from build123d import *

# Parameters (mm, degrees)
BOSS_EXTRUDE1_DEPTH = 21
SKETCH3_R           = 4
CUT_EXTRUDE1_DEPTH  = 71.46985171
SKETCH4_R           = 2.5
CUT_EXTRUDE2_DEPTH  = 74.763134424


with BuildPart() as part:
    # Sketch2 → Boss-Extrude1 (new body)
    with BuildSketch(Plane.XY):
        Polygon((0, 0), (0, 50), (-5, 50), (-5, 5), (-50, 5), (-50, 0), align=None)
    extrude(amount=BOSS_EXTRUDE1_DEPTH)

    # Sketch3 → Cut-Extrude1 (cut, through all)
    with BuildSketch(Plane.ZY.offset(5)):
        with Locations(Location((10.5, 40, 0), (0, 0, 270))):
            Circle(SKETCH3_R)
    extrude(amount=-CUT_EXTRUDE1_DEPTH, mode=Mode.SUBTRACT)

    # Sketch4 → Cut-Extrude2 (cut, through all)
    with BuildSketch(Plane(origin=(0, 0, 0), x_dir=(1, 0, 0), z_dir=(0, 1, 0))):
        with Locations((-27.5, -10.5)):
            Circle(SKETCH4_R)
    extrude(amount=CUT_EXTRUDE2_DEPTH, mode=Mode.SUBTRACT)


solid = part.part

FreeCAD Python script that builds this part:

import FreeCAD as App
import Part
import Sketcher

V = App.Vector
Q = App.Units.Quantity

doc = App.newDocument("Part")
body = doc.addObject("PartDesign::Body", "Body")

sketch1 = body.newObject("Sketcher::SketchObject", "Sketch")
sketch1.AttachmentSupport = (doc.getObject("XY_Plane"), [""])
sketch1.MapMode = "FlatFace"
sketch1.addGeometry([
    Part.LineSegment(V(0, 0, 0), V(0, 50, 0)),
    Part.LineSegment(V(0, 50, 0), V(-5, 50, 0)),
    Part.LineSegment(V(-5, 50, 0), V(-5, 5, 0)),
    Part.LineSegment(V(-5, 5, 0), V(-50, 5, 0)),
    Part.LineSegment(V(-50, 5, 0), V(-50, 0, 0)),
    Part.LineSegment(V(-50, 0, 0), V(0, 0, 0)),
], False)
sketch1.addConstraint([
    Sketcher.Constraint("Coincident", 0, 2, 1, 1),
    Sketcher.Constraint("Coincident", 1, 2, 2, 1),
    Sketcher.Constraint("Coincident", 2, 2, 3, 1),
    Sketcher.Constraint("Coincident", 3, 2, 4, 1),
    Sketcher.Constraint("Coincident", 4, 2, 5, 1),
    Sketcher.Constraint("Coincident", 5, 2, 0, 1),
    Sketcher.Constraint("Vertical", 0),
    Sketcher.Constraint("Horizontal", 1),
    Sketcher.Constraint("Vertical", 2),
    Sketcher.Constraint("Horizontal", 3),
    Sketcher.Constraint("Vertical", 4),
    Sketcher.Constraint("Horizontal", 5),
    Sketcher.Constraint("Coincident", 5, 2, -1, 1),
    Sketcher.Constraint("Equal", 5, 0),
    Sketcher.Constraint("Equal", 3, 2),
    Sketcher.Constraint("DistanceX", 1, 2, 1, 1, Q("5 mm")),
    Sketcher.Constraint("DistanceX", 3, 2, 3, 1, Q("45 mm")),
])
pad1 = body.newObject("PartDesign::Pad", "Pad")
pad1.Profile = sketch1
pad1.Length = 21

sketch2 = body.newObject("Sketcher::SketchObject", "Sketch001")
sketch2.AttachmentSupport = (doc.getObject("YZ_Plane"), [""])
sketch2.MapMode = "FlatFace"
sketch2.AttachmentOffset = App.Placement(V(0, 0, -5), App.Rotation())
sketch2.addGeometry(Part.Circle(V(40, 10.5, 0), V(0, 0, 1), 4), False)
sketch2.addConstraint([
    Sketcher.Constraint("Diameter", 0, Q("8 mm")),
    Sketcher.Constraint("DistanceX", -1, 1, 0, 3, Q("40 mm")),
    Sketcher.Constraint("DistanceY", -1, 1, 0, 3, Q("10.5 mm")),
])
pocket1 = body.newObject("PartDesign::Pocket", "Pocket")
pocket1.Profile = sketch2
pocket1.Type = "ThroughAll"
pocket1.Reversed = True

sketch3 = body.newObject("Sketcher::SketchObject", "Sketch002")
sketch3.AttachmentSupport = (doc.getObject("XZ_Plane"), [""])
sketch3.MapMode = "FlatFace"
sketch3.addGeometry(Part.Circle(V(-27.5, 10.5, 0), V(0, 0, 1), 2.5), False)
sketch3.addConstraint([
    Sketcher.Constraint("Diameter", 0, Q("5 mm")),
    Sketcher.Constraint("DistanceX", 0, 3, -1, 1, Q("27.5 mm")),
    Sketcher.Constraint("DistanceY", -1, 1, 0, 3, Q("10.5 mm")),
])
pocket2 = body.newObject("PartDesign::Pocket", "Pocket001")
pocket2.Profile = sketch3
pocket2.Type = "ThroughAll"

doc.recompute()
